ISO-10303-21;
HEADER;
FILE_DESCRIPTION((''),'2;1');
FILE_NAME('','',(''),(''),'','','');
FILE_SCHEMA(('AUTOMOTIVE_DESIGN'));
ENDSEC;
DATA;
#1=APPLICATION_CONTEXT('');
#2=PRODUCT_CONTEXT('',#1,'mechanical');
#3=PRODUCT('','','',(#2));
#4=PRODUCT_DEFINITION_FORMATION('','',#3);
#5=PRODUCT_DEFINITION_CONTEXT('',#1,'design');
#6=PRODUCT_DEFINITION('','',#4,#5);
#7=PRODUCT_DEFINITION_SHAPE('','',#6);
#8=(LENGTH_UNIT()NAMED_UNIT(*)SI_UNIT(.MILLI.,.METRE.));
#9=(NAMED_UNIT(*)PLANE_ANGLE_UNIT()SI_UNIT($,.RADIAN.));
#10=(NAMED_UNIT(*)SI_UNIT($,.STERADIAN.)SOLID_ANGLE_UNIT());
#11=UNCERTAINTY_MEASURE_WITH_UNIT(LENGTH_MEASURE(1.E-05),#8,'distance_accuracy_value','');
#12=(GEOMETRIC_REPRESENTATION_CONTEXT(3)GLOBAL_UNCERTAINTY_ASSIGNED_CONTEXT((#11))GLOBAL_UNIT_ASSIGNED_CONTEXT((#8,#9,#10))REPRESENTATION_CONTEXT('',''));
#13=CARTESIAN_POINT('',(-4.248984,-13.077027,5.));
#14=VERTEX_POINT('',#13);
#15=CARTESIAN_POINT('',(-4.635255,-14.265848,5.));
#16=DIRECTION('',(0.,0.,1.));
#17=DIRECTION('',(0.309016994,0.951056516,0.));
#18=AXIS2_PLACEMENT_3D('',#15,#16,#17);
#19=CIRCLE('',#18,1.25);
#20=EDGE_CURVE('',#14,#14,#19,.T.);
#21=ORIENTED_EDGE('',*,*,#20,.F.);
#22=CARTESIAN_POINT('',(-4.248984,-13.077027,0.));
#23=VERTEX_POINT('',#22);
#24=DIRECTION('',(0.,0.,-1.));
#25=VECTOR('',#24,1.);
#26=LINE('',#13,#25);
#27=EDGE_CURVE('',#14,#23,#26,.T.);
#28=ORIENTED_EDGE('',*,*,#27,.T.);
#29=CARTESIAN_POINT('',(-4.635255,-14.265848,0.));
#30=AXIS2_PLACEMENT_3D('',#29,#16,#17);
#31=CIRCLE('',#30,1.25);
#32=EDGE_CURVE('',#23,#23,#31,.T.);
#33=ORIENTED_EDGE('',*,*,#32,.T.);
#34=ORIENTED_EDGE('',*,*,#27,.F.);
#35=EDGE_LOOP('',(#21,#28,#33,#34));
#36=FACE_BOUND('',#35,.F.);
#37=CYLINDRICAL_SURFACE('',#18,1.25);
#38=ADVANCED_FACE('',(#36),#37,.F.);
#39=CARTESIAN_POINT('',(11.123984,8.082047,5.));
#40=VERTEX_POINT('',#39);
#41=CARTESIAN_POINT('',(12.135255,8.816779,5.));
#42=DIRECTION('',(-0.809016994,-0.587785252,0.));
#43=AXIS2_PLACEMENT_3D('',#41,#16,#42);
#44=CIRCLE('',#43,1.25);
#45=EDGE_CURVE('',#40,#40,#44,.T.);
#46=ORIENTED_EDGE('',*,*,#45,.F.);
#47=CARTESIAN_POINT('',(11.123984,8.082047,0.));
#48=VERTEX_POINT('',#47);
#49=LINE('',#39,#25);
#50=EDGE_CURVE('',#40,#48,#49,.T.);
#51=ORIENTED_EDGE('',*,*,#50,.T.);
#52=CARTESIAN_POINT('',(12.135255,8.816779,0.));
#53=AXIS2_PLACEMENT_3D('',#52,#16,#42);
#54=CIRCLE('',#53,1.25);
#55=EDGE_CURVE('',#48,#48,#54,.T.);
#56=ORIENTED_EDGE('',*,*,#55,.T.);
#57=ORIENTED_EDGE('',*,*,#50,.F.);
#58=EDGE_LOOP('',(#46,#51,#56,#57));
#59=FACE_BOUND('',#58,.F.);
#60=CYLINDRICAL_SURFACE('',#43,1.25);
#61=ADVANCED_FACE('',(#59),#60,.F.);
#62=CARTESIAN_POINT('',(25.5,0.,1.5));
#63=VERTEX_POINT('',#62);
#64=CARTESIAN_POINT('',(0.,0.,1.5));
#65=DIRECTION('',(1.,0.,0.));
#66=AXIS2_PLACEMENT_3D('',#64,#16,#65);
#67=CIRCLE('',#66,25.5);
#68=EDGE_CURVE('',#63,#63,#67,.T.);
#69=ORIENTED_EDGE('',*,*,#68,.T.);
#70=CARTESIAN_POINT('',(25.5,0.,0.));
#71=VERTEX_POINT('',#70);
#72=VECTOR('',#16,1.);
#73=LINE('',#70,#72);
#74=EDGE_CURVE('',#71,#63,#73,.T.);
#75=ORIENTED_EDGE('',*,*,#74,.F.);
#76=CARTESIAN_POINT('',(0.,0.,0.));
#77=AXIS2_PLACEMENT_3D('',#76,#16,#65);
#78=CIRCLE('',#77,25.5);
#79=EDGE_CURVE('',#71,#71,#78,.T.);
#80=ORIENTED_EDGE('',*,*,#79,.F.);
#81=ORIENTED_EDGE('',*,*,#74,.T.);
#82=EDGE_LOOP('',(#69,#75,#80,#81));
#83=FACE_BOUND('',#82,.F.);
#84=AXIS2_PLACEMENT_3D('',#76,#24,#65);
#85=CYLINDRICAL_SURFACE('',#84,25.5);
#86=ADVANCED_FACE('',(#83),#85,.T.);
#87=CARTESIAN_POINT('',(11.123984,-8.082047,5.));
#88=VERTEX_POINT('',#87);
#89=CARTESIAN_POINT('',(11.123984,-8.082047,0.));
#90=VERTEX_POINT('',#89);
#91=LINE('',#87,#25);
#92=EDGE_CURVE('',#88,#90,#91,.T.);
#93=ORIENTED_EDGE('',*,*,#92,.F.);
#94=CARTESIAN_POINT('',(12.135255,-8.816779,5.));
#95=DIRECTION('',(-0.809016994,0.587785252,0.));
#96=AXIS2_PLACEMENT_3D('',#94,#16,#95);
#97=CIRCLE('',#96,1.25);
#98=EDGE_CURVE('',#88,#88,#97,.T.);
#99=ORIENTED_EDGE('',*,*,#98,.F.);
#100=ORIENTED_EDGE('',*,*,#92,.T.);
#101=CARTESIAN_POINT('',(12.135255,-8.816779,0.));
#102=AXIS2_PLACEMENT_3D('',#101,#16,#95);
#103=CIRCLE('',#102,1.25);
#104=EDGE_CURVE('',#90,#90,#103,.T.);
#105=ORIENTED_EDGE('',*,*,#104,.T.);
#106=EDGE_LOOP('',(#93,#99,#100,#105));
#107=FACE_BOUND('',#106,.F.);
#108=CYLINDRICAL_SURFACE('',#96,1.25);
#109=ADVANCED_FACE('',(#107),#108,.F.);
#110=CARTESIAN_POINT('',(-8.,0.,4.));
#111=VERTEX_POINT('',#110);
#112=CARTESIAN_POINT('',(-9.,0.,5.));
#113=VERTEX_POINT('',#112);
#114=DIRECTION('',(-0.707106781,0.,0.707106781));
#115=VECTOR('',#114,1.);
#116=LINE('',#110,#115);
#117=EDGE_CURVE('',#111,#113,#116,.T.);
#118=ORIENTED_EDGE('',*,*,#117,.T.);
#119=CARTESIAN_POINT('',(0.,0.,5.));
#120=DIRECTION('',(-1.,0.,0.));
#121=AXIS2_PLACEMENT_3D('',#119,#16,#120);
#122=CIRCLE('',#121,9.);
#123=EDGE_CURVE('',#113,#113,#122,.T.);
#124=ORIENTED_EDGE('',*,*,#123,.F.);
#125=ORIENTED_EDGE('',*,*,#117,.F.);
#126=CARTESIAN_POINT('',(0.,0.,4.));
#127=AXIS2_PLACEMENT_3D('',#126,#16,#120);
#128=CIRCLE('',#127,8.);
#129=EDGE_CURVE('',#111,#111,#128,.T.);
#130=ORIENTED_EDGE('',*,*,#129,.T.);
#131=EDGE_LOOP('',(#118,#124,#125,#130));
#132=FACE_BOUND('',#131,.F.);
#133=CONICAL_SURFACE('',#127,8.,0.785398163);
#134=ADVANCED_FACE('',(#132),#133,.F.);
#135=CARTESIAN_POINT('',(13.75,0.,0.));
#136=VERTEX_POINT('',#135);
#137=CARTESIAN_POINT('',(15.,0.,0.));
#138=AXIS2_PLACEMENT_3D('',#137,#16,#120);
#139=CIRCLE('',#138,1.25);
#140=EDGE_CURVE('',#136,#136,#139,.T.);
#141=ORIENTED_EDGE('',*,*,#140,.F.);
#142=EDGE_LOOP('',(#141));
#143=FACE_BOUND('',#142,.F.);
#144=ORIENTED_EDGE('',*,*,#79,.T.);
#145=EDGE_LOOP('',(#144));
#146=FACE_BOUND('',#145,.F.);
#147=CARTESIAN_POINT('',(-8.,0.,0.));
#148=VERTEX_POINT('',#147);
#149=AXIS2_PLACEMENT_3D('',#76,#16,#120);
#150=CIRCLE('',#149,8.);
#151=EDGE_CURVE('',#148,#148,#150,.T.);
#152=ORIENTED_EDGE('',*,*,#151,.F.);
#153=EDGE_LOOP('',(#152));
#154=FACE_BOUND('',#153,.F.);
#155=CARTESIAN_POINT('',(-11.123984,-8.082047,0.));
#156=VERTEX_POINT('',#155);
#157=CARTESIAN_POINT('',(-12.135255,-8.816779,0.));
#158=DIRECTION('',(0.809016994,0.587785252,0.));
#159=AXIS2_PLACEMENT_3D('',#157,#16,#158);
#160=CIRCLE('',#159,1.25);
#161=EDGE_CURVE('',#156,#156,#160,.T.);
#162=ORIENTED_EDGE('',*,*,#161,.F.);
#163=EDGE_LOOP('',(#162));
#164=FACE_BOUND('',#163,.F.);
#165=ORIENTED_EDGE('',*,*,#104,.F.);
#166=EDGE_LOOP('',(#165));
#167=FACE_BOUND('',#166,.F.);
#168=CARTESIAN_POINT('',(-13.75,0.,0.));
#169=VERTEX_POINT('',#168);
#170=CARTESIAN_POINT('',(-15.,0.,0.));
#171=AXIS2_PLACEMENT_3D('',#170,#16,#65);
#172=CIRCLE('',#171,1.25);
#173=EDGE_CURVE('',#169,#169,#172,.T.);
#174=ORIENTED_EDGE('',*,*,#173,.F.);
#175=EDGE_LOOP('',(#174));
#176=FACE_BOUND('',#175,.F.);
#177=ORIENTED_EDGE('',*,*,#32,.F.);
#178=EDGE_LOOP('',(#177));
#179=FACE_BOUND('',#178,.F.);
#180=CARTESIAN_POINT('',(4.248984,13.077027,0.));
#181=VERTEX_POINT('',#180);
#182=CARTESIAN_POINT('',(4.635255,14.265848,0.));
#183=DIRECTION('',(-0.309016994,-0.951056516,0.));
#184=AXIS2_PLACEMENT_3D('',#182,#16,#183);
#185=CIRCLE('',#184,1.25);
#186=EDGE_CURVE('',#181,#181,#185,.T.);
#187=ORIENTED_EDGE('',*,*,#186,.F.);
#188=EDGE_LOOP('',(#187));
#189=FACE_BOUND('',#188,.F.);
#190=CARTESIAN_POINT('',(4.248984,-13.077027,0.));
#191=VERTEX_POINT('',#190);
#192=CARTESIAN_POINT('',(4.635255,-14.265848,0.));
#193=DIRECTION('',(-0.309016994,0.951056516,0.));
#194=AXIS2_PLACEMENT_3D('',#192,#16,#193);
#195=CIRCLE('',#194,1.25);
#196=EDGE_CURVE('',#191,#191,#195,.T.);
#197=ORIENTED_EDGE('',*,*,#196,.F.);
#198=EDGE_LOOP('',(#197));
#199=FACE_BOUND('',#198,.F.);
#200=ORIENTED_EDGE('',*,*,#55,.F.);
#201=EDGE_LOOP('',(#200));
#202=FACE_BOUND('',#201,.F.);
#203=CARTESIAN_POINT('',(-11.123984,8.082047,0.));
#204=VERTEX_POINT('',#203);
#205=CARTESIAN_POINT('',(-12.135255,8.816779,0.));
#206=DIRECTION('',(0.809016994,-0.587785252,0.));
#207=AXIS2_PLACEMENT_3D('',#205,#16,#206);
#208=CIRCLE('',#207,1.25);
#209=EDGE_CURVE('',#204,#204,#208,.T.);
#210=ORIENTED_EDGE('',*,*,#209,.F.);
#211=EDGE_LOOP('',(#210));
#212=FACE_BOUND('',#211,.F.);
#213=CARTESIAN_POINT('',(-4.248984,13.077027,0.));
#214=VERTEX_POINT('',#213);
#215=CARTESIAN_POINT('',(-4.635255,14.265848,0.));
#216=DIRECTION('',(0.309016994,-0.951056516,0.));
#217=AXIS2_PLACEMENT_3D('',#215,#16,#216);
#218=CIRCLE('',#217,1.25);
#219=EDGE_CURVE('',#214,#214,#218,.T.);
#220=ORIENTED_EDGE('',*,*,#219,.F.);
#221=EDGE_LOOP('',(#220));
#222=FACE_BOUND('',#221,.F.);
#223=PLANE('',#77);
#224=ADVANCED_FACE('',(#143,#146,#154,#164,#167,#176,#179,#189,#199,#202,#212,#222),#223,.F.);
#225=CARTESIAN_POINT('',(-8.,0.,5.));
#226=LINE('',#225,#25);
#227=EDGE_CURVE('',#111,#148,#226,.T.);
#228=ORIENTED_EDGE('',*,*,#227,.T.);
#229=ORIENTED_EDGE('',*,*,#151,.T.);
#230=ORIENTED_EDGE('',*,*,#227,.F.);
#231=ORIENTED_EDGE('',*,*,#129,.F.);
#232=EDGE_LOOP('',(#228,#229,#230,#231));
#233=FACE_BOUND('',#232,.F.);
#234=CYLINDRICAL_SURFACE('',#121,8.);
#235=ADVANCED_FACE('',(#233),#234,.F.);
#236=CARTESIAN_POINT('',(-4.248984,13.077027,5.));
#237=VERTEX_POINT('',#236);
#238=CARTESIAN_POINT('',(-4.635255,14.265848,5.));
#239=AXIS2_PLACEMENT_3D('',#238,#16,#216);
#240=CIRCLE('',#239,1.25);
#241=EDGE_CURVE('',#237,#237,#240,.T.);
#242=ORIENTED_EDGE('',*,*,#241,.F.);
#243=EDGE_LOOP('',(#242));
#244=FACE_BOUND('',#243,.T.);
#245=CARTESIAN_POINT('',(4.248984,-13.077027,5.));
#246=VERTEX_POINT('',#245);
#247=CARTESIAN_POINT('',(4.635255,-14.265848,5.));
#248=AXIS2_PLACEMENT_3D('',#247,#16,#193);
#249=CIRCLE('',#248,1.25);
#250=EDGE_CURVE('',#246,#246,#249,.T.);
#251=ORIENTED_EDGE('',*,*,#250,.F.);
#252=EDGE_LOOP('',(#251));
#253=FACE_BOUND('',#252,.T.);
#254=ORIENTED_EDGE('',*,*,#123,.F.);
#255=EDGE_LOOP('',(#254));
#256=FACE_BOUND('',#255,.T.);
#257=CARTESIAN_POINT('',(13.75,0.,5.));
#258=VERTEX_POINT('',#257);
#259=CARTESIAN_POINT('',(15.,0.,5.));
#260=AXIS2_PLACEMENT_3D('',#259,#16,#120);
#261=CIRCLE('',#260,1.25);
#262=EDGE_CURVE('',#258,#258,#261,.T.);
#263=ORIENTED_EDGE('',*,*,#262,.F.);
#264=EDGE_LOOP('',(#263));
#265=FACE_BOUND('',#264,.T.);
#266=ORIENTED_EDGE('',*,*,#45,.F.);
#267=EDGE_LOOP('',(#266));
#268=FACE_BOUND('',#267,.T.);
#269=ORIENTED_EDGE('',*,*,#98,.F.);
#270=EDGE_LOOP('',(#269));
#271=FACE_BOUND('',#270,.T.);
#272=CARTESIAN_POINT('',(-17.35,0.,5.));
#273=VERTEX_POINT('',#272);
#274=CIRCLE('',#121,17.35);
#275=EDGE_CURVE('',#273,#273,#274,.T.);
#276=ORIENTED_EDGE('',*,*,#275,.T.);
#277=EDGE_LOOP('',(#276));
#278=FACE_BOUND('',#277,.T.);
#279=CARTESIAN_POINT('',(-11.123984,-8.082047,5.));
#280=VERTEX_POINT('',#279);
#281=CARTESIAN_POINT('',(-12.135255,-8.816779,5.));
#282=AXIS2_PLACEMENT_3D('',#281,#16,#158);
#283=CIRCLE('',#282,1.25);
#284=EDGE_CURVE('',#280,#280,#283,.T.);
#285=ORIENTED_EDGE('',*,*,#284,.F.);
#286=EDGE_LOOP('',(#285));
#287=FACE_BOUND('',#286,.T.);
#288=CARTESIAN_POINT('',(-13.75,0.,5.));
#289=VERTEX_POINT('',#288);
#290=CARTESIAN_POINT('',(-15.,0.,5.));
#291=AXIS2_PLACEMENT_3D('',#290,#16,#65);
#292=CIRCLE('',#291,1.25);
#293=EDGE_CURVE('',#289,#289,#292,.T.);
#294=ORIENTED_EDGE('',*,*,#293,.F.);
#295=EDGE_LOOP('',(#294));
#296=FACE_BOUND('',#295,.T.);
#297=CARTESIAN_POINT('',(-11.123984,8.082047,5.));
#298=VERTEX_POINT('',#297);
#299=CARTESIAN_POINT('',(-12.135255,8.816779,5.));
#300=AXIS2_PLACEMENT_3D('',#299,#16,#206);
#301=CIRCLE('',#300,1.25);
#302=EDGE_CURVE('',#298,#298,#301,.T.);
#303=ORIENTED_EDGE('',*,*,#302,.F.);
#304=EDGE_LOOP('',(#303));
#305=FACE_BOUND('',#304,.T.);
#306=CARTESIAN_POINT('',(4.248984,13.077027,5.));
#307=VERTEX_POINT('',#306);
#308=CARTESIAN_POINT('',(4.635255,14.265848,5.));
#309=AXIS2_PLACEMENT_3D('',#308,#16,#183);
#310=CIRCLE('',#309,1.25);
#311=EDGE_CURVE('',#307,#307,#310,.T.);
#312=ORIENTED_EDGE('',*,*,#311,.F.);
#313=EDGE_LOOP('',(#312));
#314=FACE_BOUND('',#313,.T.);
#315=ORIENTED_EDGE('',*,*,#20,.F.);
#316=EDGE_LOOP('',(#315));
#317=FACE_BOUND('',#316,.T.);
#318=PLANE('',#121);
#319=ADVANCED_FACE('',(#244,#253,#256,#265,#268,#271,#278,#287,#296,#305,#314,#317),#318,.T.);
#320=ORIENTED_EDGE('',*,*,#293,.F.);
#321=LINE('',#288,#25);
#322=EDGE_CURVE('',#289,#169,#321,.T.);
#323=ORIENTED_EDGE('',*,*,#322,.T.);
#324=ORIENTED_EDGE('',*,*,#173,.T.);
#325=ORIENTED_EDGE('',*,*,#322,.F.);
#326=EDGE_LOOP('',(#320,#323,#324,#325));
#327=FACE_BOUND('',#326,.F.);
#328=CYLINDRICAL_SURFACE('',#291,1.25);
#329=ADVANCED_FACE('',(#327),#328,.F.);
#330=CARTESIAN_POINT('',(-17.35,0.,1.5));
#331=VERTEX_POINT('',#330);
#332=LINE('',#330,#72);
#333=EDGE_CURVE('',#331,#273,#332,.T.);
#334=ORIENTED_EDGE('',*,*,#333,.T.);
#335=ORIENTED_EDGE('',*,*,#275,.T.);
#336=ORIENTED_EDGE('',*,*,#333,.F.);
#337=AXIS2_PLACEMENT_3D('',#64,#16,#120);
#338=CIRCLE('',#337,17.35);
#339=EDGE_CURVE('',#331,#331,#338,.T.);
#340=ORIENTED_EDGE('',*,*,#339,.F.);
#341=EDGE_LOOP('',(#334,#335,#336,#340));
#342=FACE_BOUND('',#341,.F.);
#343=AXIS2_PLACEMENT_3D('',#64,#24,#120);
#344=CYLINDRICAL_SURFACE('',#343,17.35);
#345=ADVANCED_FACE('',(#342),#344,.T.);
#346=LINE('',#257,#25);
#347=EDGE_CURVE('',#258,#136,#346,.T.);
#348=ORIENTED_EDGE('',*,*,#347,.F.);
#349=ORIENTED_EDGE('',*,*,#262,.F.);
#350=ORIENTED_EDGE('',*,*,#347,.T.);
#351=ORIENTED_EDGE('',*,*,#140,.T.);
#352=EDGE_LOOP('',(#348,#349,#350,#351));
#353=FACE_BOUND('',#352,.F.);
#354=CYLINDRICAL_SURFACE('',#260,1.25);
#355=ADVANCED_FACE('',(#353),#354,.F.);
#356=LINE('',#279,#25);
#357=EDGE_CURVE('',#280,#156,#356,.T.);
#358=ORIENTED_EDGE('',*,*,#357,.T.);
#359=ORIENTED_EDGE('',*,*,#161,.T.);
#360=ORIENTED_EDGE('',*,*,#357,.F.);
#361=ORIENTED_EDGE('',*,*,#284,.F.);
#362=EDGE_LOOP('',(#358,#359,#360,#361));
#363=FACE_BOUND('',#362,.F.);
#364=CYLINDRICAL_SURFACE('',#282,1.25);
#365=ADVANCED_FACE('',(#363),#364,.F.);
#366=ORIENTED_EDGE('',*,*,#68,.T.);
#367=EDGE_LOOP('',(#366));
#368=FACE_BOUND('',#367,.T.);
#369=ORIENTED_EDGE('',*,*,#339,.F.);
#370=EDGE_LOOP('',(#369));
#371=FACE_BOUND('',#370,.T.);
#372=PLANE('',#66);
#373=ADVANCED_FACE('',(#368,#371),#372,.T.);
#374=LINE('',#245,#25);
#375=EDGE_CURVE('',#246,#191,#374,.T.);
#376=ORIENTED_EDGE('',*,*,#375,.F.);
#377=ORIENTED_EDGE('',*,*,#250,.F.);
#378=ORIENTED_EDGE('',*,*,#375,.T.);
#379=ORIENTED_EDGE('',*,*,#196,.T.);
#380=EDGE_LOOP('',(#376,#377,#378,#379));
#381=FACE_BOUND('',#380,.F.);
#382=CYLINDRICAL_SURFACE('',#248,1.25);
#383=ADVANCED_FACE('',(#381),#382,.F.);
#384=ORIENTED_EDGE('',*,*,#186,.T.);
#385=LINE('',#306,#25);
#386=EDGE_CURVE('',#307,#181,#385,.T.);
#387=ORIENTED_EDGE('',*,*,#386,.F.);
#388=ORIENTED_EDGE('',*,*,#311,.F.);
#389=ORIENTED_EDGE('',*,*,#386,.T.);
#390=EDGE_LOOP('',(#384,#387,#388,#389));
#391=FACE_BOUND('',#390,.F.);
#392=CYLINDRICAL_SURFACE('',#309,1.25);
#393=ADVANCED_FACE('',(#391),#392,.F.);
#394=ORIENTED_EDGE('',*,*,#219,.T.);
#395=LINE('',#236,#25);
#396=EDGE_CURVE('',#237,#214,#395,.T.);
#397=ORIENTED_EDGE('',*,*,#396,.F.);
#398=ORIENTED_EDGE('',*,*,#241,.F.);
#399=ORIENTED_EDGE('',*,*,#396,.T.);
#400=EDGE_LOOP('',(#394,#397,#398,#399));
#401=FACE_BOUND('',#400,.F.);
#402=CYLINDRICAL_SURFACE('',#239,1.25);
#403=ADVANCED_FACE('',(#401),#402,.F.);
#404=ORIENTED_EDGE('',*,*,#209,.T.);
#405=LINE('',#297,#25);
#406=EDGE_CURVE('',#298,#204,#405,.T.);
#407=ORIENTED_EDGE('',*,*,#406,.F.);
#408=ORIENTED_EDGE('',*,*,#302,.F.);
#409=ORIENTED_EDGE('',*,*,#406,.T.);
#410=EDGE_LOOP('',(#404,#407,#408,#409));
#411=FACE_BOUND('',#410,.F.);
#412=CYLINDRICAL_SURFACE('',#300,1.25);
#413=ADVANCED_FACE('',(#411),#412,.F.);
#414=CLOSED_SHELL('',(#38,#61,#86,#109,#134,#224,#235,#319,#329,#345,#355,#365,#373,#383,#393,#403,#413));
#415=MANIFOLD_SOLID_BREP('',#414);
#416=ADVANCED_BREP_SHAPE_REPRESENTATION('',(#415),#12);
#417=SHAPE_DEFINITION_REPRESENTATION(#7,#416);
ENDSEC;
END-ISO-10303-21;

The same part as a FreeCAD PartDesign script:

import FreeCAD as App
import Part
import Sketcher
Q = App.Units.Quantity


def edges_at(feature, points):
    """Names of the edges that pass closest to the given points."""
    edges = feature.Shape.Edges
    near = lambda p: min(range(len(edges)), key=lambda i: edges[i].distToShape(Part.Vertex(*p))[0])
    return sorted({f"Edge{near(p) + 1}" for p in points})

doc = App.newDocument("Part")
body = doc.addObject("PartDesign::Body", "Body")

# Sketch on XY plane
sketch1 = body.newObject("Sketcher::SketchObject", "Sketch")
sketch1.AttachmentSupport = (doc.getObject("XY_Plane"), [""])
sketch1.MapMode = "FlatFace"
sketch1.addGeometry(Part.Circle(App.Vector(0, 0, 0), App.Vector(0, 0, 1), 26), False)
sketch1.addConstraint([
    Sketcher.Constraint("Coincident", 0, 3, -1, 1),
    Sketcher.Constraint("Diameter", 0, Q("51 mm")),
])
pad1 = body.newObject("PartDesign::Pad", "Pad")
pad1.Profile = sketch1
pad1.Length = 1.5

# Sketch on XY plane
sketch2 = body.newObject("Sketcher::SketchObject", "Sketch001")
sketch2.AttachmentSupport = (doc.getObject("XY_Plane"), [""])
sketch2.MapMode = "FlatFace"
sketch2.AttachmentOffset = App.Placement(App.Vector(0, 0, 1.5), App.Rotation())
sketch2.addGeometry(Part.Circle(App.Vector(0, 0, 0), App.Vector(0, 0, 1), 17), False)
sketch2.addConstraint([
    Sketcher.Constraint("Coincident", 0, 3, -1, 1),
    Sketcher.Constraint("Diameter", 0, Q("34.7 mm")),
])
pad2 = body.newObject("PartDesign::Pad", "Pad001")
pad2.Profile = sketch2
pad2.Length = 3.5

# Sketch on XY plane
sketch3 = body.newObject("Sketcher::SketchObject", "Sketch002")
sketch3.AttachmentSupport = (doc.getObject("XY_Plane"), [""])
sketch3.MapMode = "FlatFace"
sketch3.AttachmentOffset = App.Placement(App.Vector(0, 0, 5), App.Rotation())
sketch3.addGeometry(Part.Circle(App.Vector(15, 0, 0), App.Vector(0, 0, 1), 1.2), False)
sketch3.addConstraint([
    Sketcher.Constraint("PointOnObject", 0, 3, -1),
    Sketcher.Constraint("Diameter", 0, Q("2.5 mm")),
    Sketcher.Constraint("DistanceX", -1, 1, 0, 3, Q("15 mm")),
])
pocket1 = body.newObject("PartDesign::Pocket", "Pocket")
pocket1.Profile = sketch3
pocket1.Length = 20
doc.recompute()

polarpattern = body.newObject("PartDesign::PolarPattern", "PolarPattern")
polarpattern.Originals = [pocket1]
polarpattern.Axis = (doc.getObject("Z_Axis"), [""])
polarpattern.Angle = 360
polarpattern.Occurrences = 10
body.Tip = polarpattern

# Sketch on XY plane
sketch4 = body.newObject("Sketcher::SketchObject", "Sketch003")
sketch4.AttachmentSupport = (doc.getObject("XY_Plane"), [""])
sketch4.MapMode = "FlatFace"
sketch4.AttachmentOffset = App.Placement(App.Vector(0, 0, 5), App.Rotation())
sketch4.addGeometry(Part.Circle(App.Vector(0, 0, 0), App.Vector(0, 0, 1), 8), False)
sketch4.addConstraint([
    Sketcher.Constraint("Coincident", 0, 3, -1, 1),
    Sketcher.Constraint("Diameter", 0, Q("16 mm")),
])
pocket2 = body.newObject("PartDesign::Pocket", "Pocket001")
pocket2.Profile = sketch4
pocket2.Length = 20
doc.recompute()

chamfer = body.newObject("PartDesign::Chamfer", "Chamfer")
chamfer.Base = (pocket2, edges_at(pocket2, [(7.459, -2.893, 5)]))
chamfer.Size = 1

doc.recompute()
